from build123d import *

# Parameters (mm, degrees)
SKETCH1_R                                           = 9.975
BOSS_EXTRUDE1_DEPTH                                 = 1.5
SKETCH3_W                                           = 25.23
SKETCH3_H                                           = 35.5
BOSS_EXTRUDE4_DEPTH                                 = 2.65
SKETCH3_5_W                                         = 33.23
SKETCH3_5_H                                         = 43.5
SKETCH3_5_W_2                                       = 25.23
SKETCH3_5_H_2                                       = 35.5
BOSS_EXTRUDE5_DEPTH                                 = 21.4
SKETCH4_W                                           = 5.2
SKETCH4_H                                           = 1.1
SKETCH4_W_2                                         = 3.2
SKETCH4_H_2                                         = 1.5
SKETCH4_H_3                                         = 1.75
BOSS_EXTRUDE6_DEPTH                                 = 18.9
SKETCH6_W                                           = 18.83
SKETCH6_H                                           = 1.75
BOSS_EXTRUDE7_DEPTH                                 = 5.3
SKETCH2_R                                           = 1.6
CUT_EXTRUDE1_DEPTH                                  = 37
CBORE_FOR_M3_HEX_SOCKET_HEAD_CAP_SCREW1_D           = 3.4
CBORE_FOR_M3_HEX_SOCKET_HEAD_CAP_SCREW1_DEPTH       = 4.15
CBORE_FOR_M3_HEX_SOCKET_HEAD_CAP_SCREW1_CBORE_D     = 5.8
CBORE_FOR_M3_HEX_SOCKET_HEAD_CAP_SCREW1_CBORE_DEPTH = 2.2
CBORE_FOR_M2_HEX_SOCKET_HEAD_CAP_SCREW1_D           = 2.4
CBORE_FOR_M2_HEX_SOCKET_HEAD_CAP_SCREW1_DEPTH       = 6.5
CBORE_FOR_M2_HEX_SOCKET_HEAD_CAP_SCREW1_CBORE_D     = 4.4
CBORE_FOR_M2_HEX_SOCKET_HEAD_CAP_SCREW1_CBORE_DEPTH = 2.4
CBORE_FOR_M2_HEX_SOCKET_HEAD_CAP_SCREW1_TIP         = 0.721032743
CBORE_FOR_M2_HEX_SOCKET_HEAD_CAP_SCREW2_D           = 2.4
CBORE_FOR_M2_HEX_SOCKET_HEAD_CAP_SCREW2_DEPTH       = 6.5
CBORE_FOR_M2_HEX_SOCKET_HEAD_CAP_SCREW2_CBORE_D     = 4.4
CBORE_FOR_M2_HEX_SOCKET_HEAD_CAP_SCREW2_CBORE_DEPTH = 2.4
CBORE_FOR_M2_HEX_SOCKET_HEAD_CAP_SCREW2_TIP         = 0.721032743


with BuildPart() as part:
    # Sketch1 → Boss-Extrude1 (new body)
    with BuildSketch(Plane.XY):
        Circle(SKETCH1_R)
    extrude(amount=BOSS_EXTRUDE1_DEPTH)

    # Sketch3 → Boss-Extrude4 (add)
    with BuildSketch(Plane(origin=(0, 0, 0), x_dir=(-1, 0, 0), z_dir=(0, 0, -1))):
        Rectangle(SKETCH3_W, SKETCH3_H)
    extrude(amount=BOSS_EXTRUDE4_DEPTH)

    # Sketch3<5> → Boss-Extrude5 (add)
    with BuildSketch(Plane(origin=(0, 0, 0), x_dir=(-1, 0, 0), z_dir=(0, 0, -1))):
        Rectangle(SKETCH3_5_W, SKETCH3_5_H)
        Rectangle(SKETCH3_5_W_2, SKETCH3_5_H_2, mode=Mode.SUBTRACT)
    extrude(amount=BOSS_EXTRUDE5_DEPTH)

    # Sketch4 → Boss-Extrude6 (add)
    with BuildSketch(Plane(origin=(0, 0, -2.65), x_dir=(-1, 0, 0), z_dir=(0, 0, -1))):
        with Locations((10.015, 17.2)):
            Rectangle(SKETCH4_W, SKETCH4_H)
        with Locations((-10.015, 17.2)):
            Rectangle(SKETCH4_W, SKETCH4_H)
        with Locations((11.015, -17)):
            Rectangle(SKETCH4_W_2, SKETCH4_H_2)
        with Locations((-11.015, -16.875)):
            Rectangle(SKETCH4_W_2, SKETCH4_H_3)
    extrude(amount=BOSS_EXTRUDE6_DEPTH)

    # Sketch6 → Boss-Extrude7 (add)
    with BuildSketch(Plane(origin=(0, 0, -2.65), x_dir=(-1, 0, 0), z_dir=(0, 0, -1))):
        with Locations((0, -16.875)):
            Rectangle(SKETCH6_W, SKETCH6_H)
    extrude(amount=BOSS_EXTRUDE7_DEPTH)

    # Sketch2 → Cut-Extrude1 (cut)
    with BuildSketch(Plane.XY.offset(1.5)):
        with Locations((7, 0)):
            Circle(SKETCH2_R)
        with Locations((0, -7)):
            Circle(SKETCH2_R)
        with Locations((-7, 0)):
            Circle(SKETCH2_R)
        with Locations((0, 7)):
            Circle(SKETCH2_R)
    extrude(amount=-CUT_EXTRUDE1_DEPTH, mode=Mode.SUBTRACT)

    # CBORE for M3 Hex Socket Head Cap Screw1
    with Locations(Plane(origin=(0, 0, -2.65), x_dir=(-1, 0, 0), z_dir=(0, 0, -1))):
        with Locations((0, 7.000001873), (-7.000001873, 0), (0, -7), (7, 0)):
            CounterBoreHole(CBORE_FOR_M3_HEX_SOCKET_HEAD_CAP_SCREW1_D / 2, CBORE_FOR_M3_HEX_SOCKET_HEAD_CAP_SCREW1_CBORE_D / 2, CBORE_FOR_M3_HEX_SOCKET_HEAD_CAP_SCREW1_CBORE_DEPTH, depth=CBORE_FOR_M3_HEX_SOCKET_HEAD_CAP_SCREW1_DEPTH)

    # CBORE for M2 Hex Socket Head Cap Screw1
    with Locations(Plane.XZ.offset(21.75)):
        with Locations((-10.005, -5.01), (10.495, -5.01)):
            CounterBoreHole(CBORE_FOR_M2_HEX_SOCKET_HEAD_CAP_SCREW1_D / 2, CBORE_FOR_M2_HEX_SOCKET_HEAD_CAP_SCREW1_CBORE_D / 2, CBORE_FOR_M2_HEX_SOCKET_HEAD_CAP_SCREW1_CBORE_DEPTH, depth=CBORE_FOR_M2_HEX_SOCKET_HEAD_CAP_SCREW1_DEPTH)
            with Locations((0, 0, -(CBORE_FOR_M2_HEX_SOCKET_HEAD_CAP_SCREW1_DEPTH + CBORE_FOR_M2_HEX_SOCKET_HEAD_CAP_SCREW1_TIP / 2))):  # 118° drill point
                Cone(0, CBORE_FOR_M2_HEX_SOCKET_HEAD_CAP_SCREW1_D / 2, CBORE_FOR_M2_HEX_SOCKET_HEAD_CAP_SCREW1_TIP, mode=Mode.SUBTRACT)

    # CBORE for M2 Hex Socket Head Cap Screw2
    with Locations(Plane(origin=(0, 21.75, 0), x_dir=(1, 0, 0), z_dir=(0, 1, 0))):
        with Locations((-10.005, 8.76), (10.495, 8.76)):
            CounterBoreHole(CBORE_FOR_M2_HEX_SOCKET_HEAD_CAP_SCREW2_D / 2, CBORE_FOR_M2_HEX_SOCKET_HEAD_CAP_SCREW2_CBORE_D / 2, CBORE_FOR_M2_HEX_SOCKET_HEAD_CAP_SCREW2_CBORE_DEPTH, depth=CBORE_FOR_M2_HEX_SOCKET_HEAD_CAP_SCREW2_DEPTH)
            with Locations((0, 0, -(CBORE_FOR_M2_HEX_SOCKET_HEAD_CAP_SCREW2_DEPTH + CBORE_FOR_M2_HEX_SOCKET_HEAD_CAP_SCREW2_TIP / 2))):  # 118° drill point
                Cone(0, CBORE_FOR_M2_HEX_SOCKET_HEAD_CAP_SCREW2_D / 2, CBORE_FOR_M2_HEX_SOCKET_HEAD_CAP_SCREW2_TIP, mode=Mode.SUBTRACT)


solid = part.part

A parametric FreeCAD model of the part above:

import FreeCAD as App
import Part
import Sketcher

V = App.Vector
Q = App.Units.Quantity

doc = App.newDocument("Part")
body = doc.addObject("PartDesign::Body", "Body")

# Sketch on XY plane
sketch1 = doc.addObject("Sketcher::SketchObject", "Sketch")
body.addObject(sketch1)
sketch1.AttachmentSupport = (doc.XY_Plane, [""])
sketch1.MapMode = "FlatFace"
sketch1.addGeometry(Part.Circle(V(0, 0, 0), V(0, 0, 1), 10), False)
sketch1.addConstraint([
    Sketcher.Constraint("Coincident", 0, 3, -1, 1),
    Sketcher.Constraint("Diameter", 0, Q("19.95 mm")),
])
pad1 = doc.addObject("PartDesign::Pad", "Pad")
body.addObject(pad1)
pad1.Profile = sketch1
pad1.Length = 1.5

# Sketch on XY plane
sketch2 = doc.addObject("Sketcher::SketchObject", "Sketch001")
body.addObject(sketch2)
sketch2.AttachmentSupport = (doc.XY_Plane, [""])
sketch2.MapMode = "FlatFace"
sketch2.addGeometry([
    Part.LineSegment(V(13, 18, 0), V(13, -18, 0)),
    Part.LineSegment(V(13, -18, 0), V(-13, -18, 0)),
    Part.LineSegment(V(-13, -18, 0), V(-13, 18, 0)),
    Part.LineSegment(V(-13, 18, 0), V(13, 18, 0)),
], False)
sketch2.addConstraint([
    Sketcher.Constraint("Coincident", 0, 2, 1, 1),
    Sketcher.Constraint("Coincident", 1, 2, 2, 1),
    Sketcher.Constraint("Coincident", 2, 2, 3, 1),
    Sketcher.Constraint("Coincident", 3, 2, 0, 1),
    Sketcher.Constraint("Vertical", 0),
    Sketcher.Constraint("Horizontal", 1),
    Sketcher.Constraint("Vertical", 2),
    Sketcher.Constraint("Horizontal", 3),
    Sketcher.Constraint("Symmetric", 0, 2, 2, 2, -1, 1),
    Sketcher.Constraint("DistanceY", 0, 2, 0, 1, Q("35.5 mm")),
    Sketcher.Constraint("DistanceX", 1, 2, 1, 1, Q("25.23 mm")),
])
pad2 = doc.addObject("PartDesign::Pad", "Pad001")
body.addObject(pad2)
pad2.Profile = sketch2
pad2.Length = 2.65
pad2.Reversed = True

# Sketch on XY plane
sketch3 = doc.addObject("Sketcher::SketchObject", "Sketch002")
body.addObject(sketch3)
sketch3.AttachmentSupport = (doc.XY_Plane, [""])
sketch3.MapMode = "FlatFace"
sketch3.addGeometry([
    Part.LineSegment(V(17, 22, 0), V(17, -22, 0)),  # 0
    Part.LineSegment(V(17, -22, 0), V(-17, -22, 0)),  # 1
    Part.LineSegment(V(-17, -22, 0), V(-17, 22, 0)),  # 2
    Part.LineSegment(V(-17, 22, 0), V(17, 22, 0)),  # 3
    Part.LineSegment(V(-13, -18, 0), V(13, -18, 0)),  # 4
    Part.LineSegment(V(13, -18, 0), V(13, 18, 0)),  # 5
    Part.LineSegment(V(13, 18, 0), V(-13, 18, 0)),  # 6
    Part.LineSegment(V(-13, 18, 0), V(-13, -18, 0)),  # 7
], False)
sketch3.addConstraint([
    Sketcher.Constraint("Coincident", 0, 2, 1, 1),
    Sketcher.Constraint("Coincident", 1, 2, 2, 1),
    Sketcher.Constraint("Coincident", 2, 2, 3, 1),
    Sketcher.Constraint("Coincident", 3, 2, 0, 1),
    Sketcher.Constraint("Coincident", 4, 2, 5, 1),
    Sketcher.Constraint("Coincident", 5, 2, 6, 1),
    Sketcher.Constraint("Coincident", 6, 2, 7, 1),
    Sketcher.Constraint("Coincident", 7, 2, 4, 1),
    Sketcher.Constraint("Vertical", 0),
    Sketcher.Constraint("Horizontal", 1),
    Sketcher.Constraint("Vertical", 2),
    Sketcher.Constraint("Horizontal", 3),
    Sketcher.Constraint("Horizontal", 4),
    Sketcher.Constraint("Vertical", 5),
    Sketcher.Constraint("Horizontal", 6),
    Sketcher.Constraint("Vertical", 7),
    Sketcher.Constraint("Symmetric", 0, 2, 2, 2, -1, 1),
    Sketcher.Constraint("Symmetric", 4, 2, 6, 2, -1, 1),
    Sketcher.Constraint("DistanceY", 0, 2, 0, 1, Q("43.5 mm")),
    Sketcher.Constraint("DistanceY", 5, 1, 5, 2, Q("35.5 mm")),
    Sketcher.Constraint("DistanceX", 4, 2, 0, 2, Q("4 mm")),
    Sketcher.Constraint("DistanceX", 1, 2, 1, 1, Q("33.23 mm")),
])
pad3 = doc.addObject("PartDesign::Pad", "Pad002")
body.addObject(pad3)
pad3.Profile = sketch3
pad3.Length = 21.4
pad3.Reversed = True

# Sketch on XY plane
sketch4 = doc.addObject("Sketcher::SketchObject", "Sketch003")
body.addObject(sketch4)
sketch4.AttachmentSupport = (doc.XY_Plane, [""])
sketch4.MapMode = "FlatFace"
sketch4.AttachmentOffset = App.Placement(V(0, 0, -2.65), App.Rotation())
sketch4.addGeometry([
    Part.LineSegment(V(-7.4, 17.8, 0), V(-7.4, 16.6, 0)),  # 0
    Part.LineSegment(V(-7.4, 16.6, 0), V(-12.6, 16.6, 0)),  # 1
    Part.LineSegment(V(-12.6, 16.6, 0), V(-12.6, 17.8, 0)),  # 2
    Part.LineSegment(V(-12.6, 17.8, 0), V(-7.4, 17.8, 0)),  # 3
    Part.LineSegment(V(12.6, 17.8, 0), V(12.6, 16.6, 0)),  # 4
    Part.LineSegment(V(12.6, 16.6, 0), V(7.4, 16.6, 0)),  # 5
    Part.LineSegment(V(7.4, 16.6, 0), V(7.4, 17.8, 0)),  # 6
    Part.LineSegment(V(7.4, 17.8, 0), V(12.6, 17.8, 0)),  # 7
    Part.LineSegment(V(-9.4, -16.2, 0), V(-9.4, -17.8, 0)),  # 8
    Part.LineSegment(V(-9.4, -17.8, 0), V(-12.6, -17.8, 0)),  # 9
    Part.LineSegment(V(-12.6, -17.8, 0), V(-12.6, -16.2, 0)),  # 10
    Part.LineSegment(V(-12.6, -16.2, 0), V(-9.4, -16.2, 0)),  # 11
    Part.LineSegment(V(12.6, -16, 0), V(12.6, -17.8, 0)),  # 12
    Part.LineSegment(V(12.6, -17.8, 0), V(9.4, -17.8, 0)),  # 13
    Part.LineSegment(V(9.4, -17.8, 0), V(9.4, -16, 0)),  # 14
    Part.LineSegment(V(9.4, -16, 0), V(12.6, -16, 0)),  # 15
], False)
sketch4.addConstraint([
    Sketcher.Constraint("Coincident", 0, 2, 1, 1),
    Sketcher.Constraint("Coincident", 1, 2, 2, 1),
    Sketcher.Constraint("Coincident", 2, 2, 3, 1),
    Sketcher.Constraint("Coincident", 3, 2, 0, 1),
    Sketcher.Constraint("Coincident", 4, 2, 5, 1),
    Sketcher.Constraint("Coincident", 5, 2, 6, 1),
    Sketcher.Constraint("Coincident", 6, 2, 7, 1),
    Sketcher.Constraint("Coincident", 7, 2, 4, 1),
    Sketcher.Constraint("Coincident", 8, 2, 9, 1),
    Sketcher.Constraint("Coincident", 9, 2, 10, 1),
    Sketcher.Constraint("Coincident", 10, 2, 11, 1),
    Sketcher.Constraint("Coincident", 11, 2, 8, 1),
    Sketcher.Constraint("Coincident", 12, 2, 13, 1),
    Sketcher.Constraint("Coincident", 13, 2, 14, 1),
    Sketcher.Constraint("Coincident", 14, 2, 15, 1),
    Sketcher.Constraint("Coincident", 15, 2, 12, 1),
    Sketcher.Constraint("Vertical", 0),
    Sketcher.Constraint("Horizontal", 1),
    Sketcher.Constraint("Vertical", 2),
    Sketcher.Constraint("Horizontal", 3),
    Sketcher.Constraint("Vertical", 4),
    Sketcher.Constraint("Horizontal", 5),
    Sketcher.Constraint("Vertical", 6),
    Sketcher.Constraint("Horizontal", 7),
    Sketcher.Constraint("Vertical", 8),
    Sketcher.Constraint("Horizontal", 9),
    Sketcher.Constraint("Vertical", 10),
    Sketcher.Constraint("Horizontal", 11),
    Sketcher.Constraint("Vertical", 12),
    Sketcher.Constraint("Horizontal", 13),
    Sketcher.Constraint("Vertical", 14),
    Sketcher.Constraint("Horizontal", 15),
    Sketcher.Constraint("Symmetric", 7, 2, 9, 2, -1, 1),
    Sketcher.Constraint("Symmetric", 2, 2, 12, 2, -1, 1),
    Sketcher.Constraint("Symmetric", 1, 2, 4, 2, -2),
    Sketcher.Constraint("Symmetric", 3, 2, 6, 2, -2),
    Sketcher.Constraint("Equal", 11, 13),
    Sketcher.Constraint("DistanceX", 1, 2, 1, 1, Q("5.2 mm")),
    Sketcher.Constraint("DistanceX", 9, 2, 9, 1, Q("3.2 mm")),
    Sketcher.Constraint("DistanceY", 0, 2, 0, 1, Q("1.1 mm")),
    Sketcher.Constraint("DistanceY", 8, 2, 8, 1, Q("1.5 mm")),
    Sketcher.Constraint("DistanceY", 14, 2, -1, 1, Q("16 mm")),
    Sketcher.Constraint("DistanceY", 10, 2, 2, 2, Q("34 mm")),
    Sketcher.Constraint("DistanceX", 0, 2, 4, 2, Q("20.03 mm")),
])
pad4 = doc.addObject("PartDesign::Pad", "Pad003")
body.addObject(pad4)
pad4.Profile = sketch4
pad4.Length = 18.9
pad4.Reversed = True

# Sketch on XY plane
sketch5 = doc.addObject("Sketcher::SketchObject", "Sketch004")
body.addObject(sketch5)
sketch5.AttachmentSupport = (doc.XY_Plane, [""])
sketch5.MapMode = "FlatFace"
sketch5.AttachmentOffset = App.Placement(V(0, 0, -2.65), App.Rotation())
sketch5.addGeometry([
    Part.LineSegment(V(9.4, -16, 0), V(9.4, -17.8, 0)),
    Part.LineSegment(V(9.4, -17.8, 0), V(-9.4, -17.8, 0)),
    Part.LineSegment(V(-9.4, -17.8, 0), V(-9.4, -16, 0)),
    Part.LineSegment(V(-9.4, -16, 0), V(9.4, -16, 0)),
], False)
sketch5.addConstraint([
    Sketcher.Constraint("Coincident", 0, 2, 1, 1),
    Sketcher.Constraint("Coincident", 1, 2, 2, 1),
    Sketcher.Constraint("Coincident", 2, 2, 3, 1),
    Sketcher.Constraint("Coincident", 3, 2, 0, 1),
    Sketcher.Constraint("Vertical", 0),
    Sketcher.Constraint("Horizontal", 1),
    Sketcher.Constraint("Vertical", 2),
    Sketcher.Constraint("Horizontal", 3),
    Sketcher.Constraint("DistanceY", 2, 2, -1, 1, Q("16 mm")),
    Sketcher.Constraint("DistanceX", 1, 2, 1, 1, Q("18.83 mm")),
    Sketcher.Constraint("DistanceY", 0, 2, 0, 1, Q("1.75 mm")),
    Sketcher.Constraint("DistanceX", -1, 1, 0, 2, Q("9.415 mm")),
])
pad5 = doc.addObject("PartDesign::Pad", "Pad004")
body.addObject(pad5)
pad5.Profile = sketch5
pad5.Length = 5.3
pad5.Reversed = True

# Sketch on XY plane
sketch6 = doc.addObject("Sketcher::SketchObject", "Sketch005")
body.addObject(sketch6)
sketch6.AttachmentSupport = (doc.XY_Plane, [""])
sketch6.MapMode = "FlatFace"
sketch6.AttachmentOffset = App.Placement(V(0, 0, 1.5), App.Rotation())
sketch6.addGeometry([
    Part.Circle(V(7, 0, 0), V(0, 0, 1), 1.6),
    Part.Circle(V(0, -7, 0), V(0, 0, 1), 1.6),
    Part.Circle(V(-7, 0, 0), V(0, 0, 1), 1.6),
    Part.Circle(V(0, 7, 0), V(0, 0, 1), 1.6),
], False)
sketch6.addConstraint([
    Sketcher.Constraint("Equal", 0, 1),
    Sketcher.Constraint("Equal", 1, 2),
    Sketcher.Constraint("Equal", 2, 3),
    Sketcher.Constraint("Symmetric", 0, 3, 2, 3, -1, 1),
    Sketcher.Constraint("Symmetric", 1, 3, 3, 3, -1, 1),
    Sketcher.Constraint("PointOnObject", 0, 3, -1),
    Sketcher.Constraint("PointOnObject", 1, 3, -2),
    Sketcher.Constraint("Diameter", 0, Q("3.2 mm")),
    Sketcher.Constraint("DistanceX", -1, 1, 0, 3, Q("7 mm")),
    Sketcher.Constraint("DistanceY", 1, 3, -1, 1, Q("7 mm")),
])
pocket1 = doc.addObject("PartDesign::Pocket", "Pocket")
body.addObject(pocket1)
pocket1.Profile = sketch6
pocket1.Length = 37

# Sketch on XY plane
sketch7 = doc.addObject("Sketcher::SketchObject", "Sketch006")
body.addObject(sketch7)
sketch7.AttachmentSupport = (doc.XY_Plane, [""])
sketch7.MapMode = "FlatFace"
sketch7.AttachmentOffset = App.Placement(V(0, 0, -2.65), App.Rotation())
sketch7.addGeometry([
    Part.Circle(V(0, 7, 0), V(0, 0, 1), 1.7),
    Part.Circle(V(7, 0, 0), V(0, 0, 1), 1.7),
    Part.Circle(V(0, -7, 0), V(0, 0, 1), 1.7),
    Part.Circle(V(-7, 0, 0), V(0, 0, 1), 1.7),
], False)
sketch7.addConstraint([
    Sketcher.Constraint("Equal", 0, 1),
    Sketcher.Constraint("Equal", 1, 2),
    Sketcher.Constraint("Equal", 2, 3),
    Sketcher.Constraint("Symmetric", 0, 3, 2, 3, -1, 1),
    Sketcher.Constraint("Symmetric", 1, 3, 3, 3, -1, 1),
    Sketcher.Constraint("PointOnObject", 0, 3, -2),
    Sketcher.Constraint("PointOnObject", 1, 3, -1),
    Sketcher.Constraint("Diameter", 0, Q("3.4 mm")),
    Sketcher.Constraint("DistanceY", -1, 1, 0, 3, Q("7.000002 mm")),
    Sketcher.Constraint("DistanceX", -1, 1, 1, 3, Q("7.000002 mm")),
])
doc.recompute()
hole = doc.addObject("PartDesign::Hole", "Hole")
body.addObject(hole)
hole.Profile = sketch7
hole.ThreadType = "None"
hole.Diameter = 3.4
hole.DepthType = "Dimension"
hole.Depth = 4.15
hole.DrillPoint = "Flat"
hole.HoleCutType = "Counterbore"
hole.HoleCutDiameter = 5.8
hole.HoleCutDepth = 2.2
hole.Reversed = True

# Sketch on XZ plane
sketch8 = doc.addObject("Sketcher::SketchObject", "Sketch007")
body.addObject(sketch8)
sketch8.AttachmentSupport = (doc.XZ_Plane, [""])
sketch8.MapMode = "FlatFace"
sketch8.AttachmentOffset = App.Placement(V(0, 0, 21.75), App.Rotation())
sketch8.addGeometry([
    Part.Circle(V(-10, -5, 0), V(0, 0, 1), 1.2),
    Part.Circle(V(10.5, -5, 0), V(0, 0, 1), 1.2),
], False)
sketch8.addConstraint([
    Sketcher.Constraint("Equal", 0, 1),
    Sketcher.Constraint("Horizontal", 0, 3, 1, 3),
    Sketcher.Constraint("Diameter", 0, Q("2.4 mm")),
    Sketcher.Constraint("DistanceX", 0, 3, 1, 3, Q("20.5 mm")),
    Sketcher.Constraint("DistanceY", 0, 3, -1, 1, Q("5.01 mm")),
    Sketcher.Constraint("DistanceX", 0, 3, -1, 1, Q("10.005 mm")),
])
doc.recompute()
hole2 = doc.addObject("PartDesign::Hole", "Hole001")
body.addObject(hole2)
hole2.Profile = sketch8
hole2.ThreadType = "None"
hole2.Diameter = 2.4
hole2.DepthType = "Dimension"
hole2.Depth = 6.5
hole2.DrillPoint = "Angled"
hole2.DrillPointAngle = 118
hole2.HoleCutType = "Counterbore"
hole2.HoleCutDiameter = 4.4
hole2.HoleCutDepth = 2.4

# Sketch on XZ plane
sketch9 = doc.addObject("Sketcher::SketchObject", "Sketch008")
body.addObject(sketch9)
sketch9.AttachmentSupport = (doc.XZ_Plane, [""])
sketch9.MapMode = "FlatFace"
sketch9.AttachmentOffset = App.Placement(V(0, 0, -21.75), App.Rotation())
sketch9.addGeometry([
    Part.Circle(V(-10, -8.8, 0), V(0, 0, 1), 1.2),
    Part.Circle(V(10.5, -8.8, 0), V(0, 0, 1), 1.2),
], False)
sketch9.addConstraint([
    Sketcher.Constraint("Equal", 0, 1),
    Sketcher.Constraint("Horizontal", 0, 3, 1, 3),
    Sketcher.Constraint("Diameter", 0, Q("2.4 mm")),
    Sketcher.Constraint("DistanceX", 0, 3, 1, 3, Q("20.5 mm")),
    Sketcher.Constraint("DistanceY", 0, 3, -1, 1, Q("8.76 mm")),
    Sketcher.Constraint("DistanceX", 0, 3, -1, 1, Q("10.005 mm")),
])
doc.recompute()
hole3 = doc.addObject("PartDesign::Hole", "Hole002")
body.addObject(hole3)
hole3.Profile = sketch9
hole3.ThreadType = "None"
hole3.Diameter = 2.4
hole3.DepthType = "Dimension"
hole3.Depth = 6.5
hole3.DrillPoint = "Angled"
hole3.DrillPointAngle = 118
hole3.HoleCutType = "Counterbore"
hole3.HoleCutDiameter = 4.4
hole3.HoleCutDepth = 2.4
hole3.Reversed = True

doc.recompute()
